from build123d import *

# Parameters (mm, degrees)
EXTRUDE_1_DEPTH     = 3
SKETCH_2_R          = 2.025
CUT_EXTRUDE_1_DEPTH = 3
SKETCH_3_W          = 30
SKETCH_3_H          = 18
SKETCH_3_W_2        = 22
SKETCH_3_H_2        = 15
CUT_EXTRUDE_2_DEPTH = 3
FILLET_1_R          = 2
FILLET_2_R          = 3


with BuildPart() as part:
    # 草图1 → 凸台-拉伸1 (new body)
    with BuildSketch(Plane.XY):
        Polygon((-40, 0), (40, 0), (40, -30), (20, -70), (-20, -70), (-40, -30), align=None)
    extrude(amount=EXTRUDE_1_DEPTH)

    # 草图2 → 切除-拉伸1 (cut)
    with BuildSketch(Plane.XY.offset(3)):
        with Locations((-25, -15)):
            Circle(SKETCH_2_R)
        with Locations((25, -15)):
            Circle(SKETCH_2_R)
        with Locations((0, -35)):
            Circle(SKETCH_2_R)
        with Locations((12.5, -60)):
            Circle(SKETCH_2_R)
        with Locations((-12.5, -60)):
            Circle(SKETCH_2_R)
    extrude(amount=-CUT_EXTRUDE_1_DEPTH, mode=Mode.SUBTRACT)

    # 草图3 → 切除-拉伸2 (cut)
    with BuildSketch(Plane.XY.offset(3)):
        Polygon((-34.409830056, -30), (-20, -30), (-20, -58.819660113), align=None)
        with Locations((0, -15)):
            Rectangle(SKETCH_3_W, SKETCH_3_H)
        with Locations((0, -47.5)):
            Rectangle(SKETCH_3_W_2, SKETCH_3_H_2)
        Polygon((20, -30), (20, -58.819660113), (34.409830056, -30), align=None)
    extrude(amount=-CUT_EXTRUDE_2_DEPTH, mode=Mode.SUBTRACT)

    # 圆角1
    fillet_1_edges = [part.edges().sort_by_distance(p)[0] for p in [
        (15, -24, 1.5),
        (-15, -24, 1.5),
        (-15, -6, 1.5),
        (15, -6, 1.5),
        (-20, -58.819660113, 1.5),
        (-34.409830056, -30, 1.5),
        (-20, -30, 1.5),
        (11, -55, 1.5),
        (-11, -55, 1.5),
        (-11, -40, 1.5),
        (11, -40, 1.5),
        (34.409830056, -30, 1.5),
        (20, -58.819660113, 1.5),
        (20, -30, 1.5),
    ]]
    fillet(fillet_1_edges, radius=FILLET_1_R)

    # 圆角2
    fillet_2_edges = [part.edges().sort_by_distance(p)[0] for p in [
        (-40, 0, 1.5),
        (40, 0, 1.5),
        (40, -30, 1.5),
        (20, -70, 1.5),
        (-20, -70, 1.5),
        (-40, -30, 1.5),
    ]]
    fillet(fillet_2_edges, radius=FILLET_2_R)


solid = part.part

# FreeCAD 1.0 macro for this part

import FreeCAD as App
import Part
import Sketcher

V = App.Vector


def edges_at(feature, points):
    """Names of the edges that pass closest to the given points."""
    edges = feature.Shape.Edges
    near = lambda p: min(range(len(edges)), key=lambda i: edges[i].distToShape(Part.Vertex(*p))[0])
    return sorted({f"Edge{near(p) + 1}" for p in points})


def add_polygon(sketch, points):
    """Adds a closed chain of lines whose ends are joined by coincident constraints."""
    first, n = sketch.GeometryCount, len(points)
    for a, b in zip(points, points[1:] + points[:1]):
        sketch.addGeometry(Part.LineSegment(App.Vector(*a, 0), App.Vector(*b, 0)), False)
    for i in range(n):
        sketch.addConstraint(Sketcher.Constraint("Coincident", first + i, 2, first + (i + 1) % n, 1))

doc = App.newDocument("Part")
params = doc.addObject("Spreadsheet::Sheet", "Params")
for row, (alias, value) in enumerate([
    ("sketch1_width", "80 mm"),
    ("sketch1_width2", "40 mm"),
    ("sketch1_height", "30 mm"),
    ("pad1_length", "3 mm"),
    ("sketch2_diameter", "4.05 mm"),
    ("pocket1_length", "3 mm"),
    ("sketch3_width", "30 mm"),
    ("sketch3_width2", "22 mm"),
    ("sketch3_height", "18 mm"),
    ("sketch3_height2", "15 mm"),
    ("pocket2_length", "3 mm"),
    ("fillet_radius", "2 mm"),
    ("fillet2_radius", "3 mm"),
], start=1):
    params.set(f"A{row}", alias)
    params.set(f"B{row}", "=" + value)
    params.setAlias(f"B{row}", alias)

body = doc.addObject("PartDesign::Body", "Body")

sketch1 = doc.addObject("Sketcher::SketchObject", "Sketch")
body.addObject(sketch1)
sketch1.AttachmentSupport = (doc.XY_Plane, [""])
sketch1.MapMode = "FlatFace"
add_polygon(sketch1, [(40, 0), (-40, 0), (-40, -30), (-20, -70), (20, -70), (40, -30)])
sketch1.addConstraint([
    Sketcher.Constraint("Horizontal", 0),
    Sketcher.Constraint("Vertical", 1),
    Sketcher.Constraint("Horizontal", 3),
    Sketcher.Constraint("Vertical", 5),
    Sketcher.Constraint("Symmetric", 0, 2, 5, 2, -1, 1),
    Sketcher.Constraint("Horizontal", 1, 2, 4, 2),
    Sketcher.Constraint("Equal", 2, 4),
    Sketcher.Constraint("DistanceX", 0, 2, 0, 1, 80.0),
    Sketcher.Constraint("DistanceX", 3, 1, 3, 2, 40.0),
    Sketcher.Constraint("DistanceY", 1, 2, 1, 1, 30.0),
    Sketcher.Constraint("DistanceY", 2, 2, -1, 1, 70.0),
])
sketch1.setExpression("Constraints[13]", "Params.sketch1_width")
sketch1.setExpression("Constraints[14]", "Params.sketch1_width2")
sketch1.setExpression("Constraints[15]", "Params.sketch1_height")
pad1 = doc.addObject("PartDesign::Pad", "Pad")
body.addObject(pad1)
pad1.Profile = sketch1
pad1.setExpression("Length", "Params.pad1_length")

sketch2 = doc.addObject("Sketcher::SketchObject", "Sketch001")
body.addObject(sketch2)
sketch2.AttachmentSupport = (doc.XY_Plane, [""])
sketch2.MapMode = "FlatFace"
sketch2.AttachmentOffset = App.Placement(V(0, 0, 3), App.Rotation())
sketch2.addGeometry([
    Part.Circle(V(-25, -15, 0), V(0, 0, 1), 2),
    Part.Circle(V(25, -15, 0), V(0, 0, 1), 2),
    Part.Circle(V(0, -35, 0), V(0, 0, 1), 2),
    Part.Circle(V(12.5, -60, 0), V(0, 0, 1), 2),
    Part.Circle(V(-12.5, -60, 0), V(0, 0, 1), 2),
], False)
sketch2.addConstraint([
    Sketcher.Constraint("Equal", 0, 1),
    Sketcher.Constraint("Equal", 1, 2),
    Sketcher.Constraint("Equal", 2, 3),
    Sketcher.Constraint("Equal", 3, 4),
    Sketcher.Constraint("Symmetric", 0, 3, 1, 3, -2),
    Sketcher.Constraint("Symmetric", 3, 3, 4, 3, -2),
    Sketcher.Constraint("PointOnObject", 2, 3, -2),
    Sketcher.Constraint("Diameter", 0, 4.05),
    Sketcher.Constraint("DistanceX", 0, 3, -1, 1, 25.0),
    Sketcher.Constraint("DistanceY", 0, 3, -1, 1, 15.0),
    Sketcher.Constraint("DistanceY", 2, 3, -1, 1, 35.0),
    Sketcher.Constraint("DistanceY", 3, 3, -1, 1, 60.0),
    Sketcher.Constraint("DistanceX", 4, 3, 3, 3, 25.0),
])
sketch2.setExpression("Constraints[7]", "Params.sketch2_diameter")
pocket1 = doc.addObject("PartDesign::Pocket", "Pocket")
body.addObject(pocket1)
pocket1.Profile = sketch2
pocket1.setExpression("Length", "Params.pocket1_length")

sketch3 = doc.addObject("Sketcher::SketchObject", "Sketch002")
body.addObject(sketch3)
sketch3.AttachmentSupport = (doc.XY_Plane, [""])
sketch3.MapMode = "FlatFace"
sketch3.AttachmentOffset = App.Placement(V(0, 0, 3), App.Rotation())
add_polygon(sketch3, [(-20, -30), (-34, -30), (-20, -59)])
add_polygon(sketch3, [(-15, -6), (-15, -24), (15, -24), (15, -6)])
add_polygon(sketch3, [(-11, -40), (-11, -55), (11, -55), (11, -40)])
add_polygon(sketch3, [(20, -30), (20, -59), (34, -30)])
sketch3.addConstraint([
    Sketcher.Constraint("Horizontal", 0),
    Sketcher.Constraint("Vertical", 2),
    Sketcher.Constraint("Vertical", 3),
    Sketcher.Constraint("Horizontal", 4),
    Sketcher.Constraint("Vertical", 5),
    Sketcher.Constraint("Horizontal", 6),
    Sketcher.Constraint("Vertical", 7),
    Sketcher.Constraint("Horizontal", 8),
    Sketcher.Constraint("Vertical", 9),
    Sketcher.Constraint("Horizontal", 10),
    Sketcher.Constraint("Vertical", 11),
    Sketcher.Constraint("Horizontal", 13),
    Sketcher.Constraint("Symmetric", 1, 2, 11, 2, -2),
    Sketcher.Constraint("Symmetric", 0, 2, 12, 2, -2),
    Sketcher.Constraint("DistanceX", 4, 1, 4, 2, 30.0),
    Sketcher.Constraint("DistanceX", 8, 1, 8, 2, 22.0),
    Sketcher.Constraint("DistanceY", 3, 2, 3, 1, 18.0),
    Sketcher.Constraint("DistanceY", 7, 2, 7, 1, 15.0),
    Sketcher.Constraint("DistanceY", 0, 2, -1, 1, 30.0),
    Sketcher.Constraint("DistanceX", 1, 2, -1, 1, 20.0),
    Sketcher.Constraint("DistanceX", 3, 2, -1, 1, 15.0),
    Sketcher.Constraint("DistanceY", 3, 2, -1, 1, 24.0),
    Sketcher.Constraint("DistanceX", 7, 2, -1, 1, 11.0),
    Sketcher.Constraint("DistanceY", 7, 2, -1, 1, 55.0),
    Sketcher.Constraint("DistanceX", 0, 2, 0, 1, 14.40983),
    Sketcher.Constraint("DistanceY", 2, 1, 2, 2, 28.81966),
])
sketch3.setExpression("Constraints[28]", "Params.sketch3_width")
sketch3.setExpression("Constraints[29]", "Params.sketch3_width2")
sketch3.setExpression("Constraints[30]", "Params.sketch3_height")
sketch3.setExpression("Constraints[31]", "Params.sketch3_height2")
pocket2 = doc.addObject("PartDesign::Pocket", "Pocket001")
body.addObject(pocket2)
pocket2.Profile = sketch3
pocket2.setExpression("Length", "Params.pocket2_length")
doc.recompute()

fillet = doc.addObject("PartDesign::Fillet", "Fillet")
body.addObject(fillet)
fillet.Base = (pocket2, edges_at(pocket2, [
    (15, -24, 1.5),
    (-15, -24, 1.5),
    (-15, -6, 1.5),
    (15, -6, 1.5),
    (-20, -58.82, 1.5),
    (-34.41, -30, 1.5),
    (-20, -30, 1.5),
    (11, -55, 1.5),
    (-11, -55, 1.5),
    (-11, -40, 1.5),
    (11, -40, 1.5),
    (34.41, -30, 1.5),
    (20, -58.82, 1.5),
    (20, -30, 1.5),
]))
fillet.setExpression("Radius", "Params.fillet_radius")
doc.recompute()

fillet2 = doc.addObject("PartDesign::Fillet", "Fillet001")
body.addObject(fillet2)
fillet2.Base = (fillet, edges_at(fillet, [
    (-40, 0, 1.5),
    (40, 0, 1.5),
    (40, -30, 1.5),
    (20, -70, 1.5),
    (-20, -70, 1.5),
    (-40, -30, 1.5),
]))
fillet2.setExpression("Radius", "Params.fillet2_radius")

doc.recompute()
